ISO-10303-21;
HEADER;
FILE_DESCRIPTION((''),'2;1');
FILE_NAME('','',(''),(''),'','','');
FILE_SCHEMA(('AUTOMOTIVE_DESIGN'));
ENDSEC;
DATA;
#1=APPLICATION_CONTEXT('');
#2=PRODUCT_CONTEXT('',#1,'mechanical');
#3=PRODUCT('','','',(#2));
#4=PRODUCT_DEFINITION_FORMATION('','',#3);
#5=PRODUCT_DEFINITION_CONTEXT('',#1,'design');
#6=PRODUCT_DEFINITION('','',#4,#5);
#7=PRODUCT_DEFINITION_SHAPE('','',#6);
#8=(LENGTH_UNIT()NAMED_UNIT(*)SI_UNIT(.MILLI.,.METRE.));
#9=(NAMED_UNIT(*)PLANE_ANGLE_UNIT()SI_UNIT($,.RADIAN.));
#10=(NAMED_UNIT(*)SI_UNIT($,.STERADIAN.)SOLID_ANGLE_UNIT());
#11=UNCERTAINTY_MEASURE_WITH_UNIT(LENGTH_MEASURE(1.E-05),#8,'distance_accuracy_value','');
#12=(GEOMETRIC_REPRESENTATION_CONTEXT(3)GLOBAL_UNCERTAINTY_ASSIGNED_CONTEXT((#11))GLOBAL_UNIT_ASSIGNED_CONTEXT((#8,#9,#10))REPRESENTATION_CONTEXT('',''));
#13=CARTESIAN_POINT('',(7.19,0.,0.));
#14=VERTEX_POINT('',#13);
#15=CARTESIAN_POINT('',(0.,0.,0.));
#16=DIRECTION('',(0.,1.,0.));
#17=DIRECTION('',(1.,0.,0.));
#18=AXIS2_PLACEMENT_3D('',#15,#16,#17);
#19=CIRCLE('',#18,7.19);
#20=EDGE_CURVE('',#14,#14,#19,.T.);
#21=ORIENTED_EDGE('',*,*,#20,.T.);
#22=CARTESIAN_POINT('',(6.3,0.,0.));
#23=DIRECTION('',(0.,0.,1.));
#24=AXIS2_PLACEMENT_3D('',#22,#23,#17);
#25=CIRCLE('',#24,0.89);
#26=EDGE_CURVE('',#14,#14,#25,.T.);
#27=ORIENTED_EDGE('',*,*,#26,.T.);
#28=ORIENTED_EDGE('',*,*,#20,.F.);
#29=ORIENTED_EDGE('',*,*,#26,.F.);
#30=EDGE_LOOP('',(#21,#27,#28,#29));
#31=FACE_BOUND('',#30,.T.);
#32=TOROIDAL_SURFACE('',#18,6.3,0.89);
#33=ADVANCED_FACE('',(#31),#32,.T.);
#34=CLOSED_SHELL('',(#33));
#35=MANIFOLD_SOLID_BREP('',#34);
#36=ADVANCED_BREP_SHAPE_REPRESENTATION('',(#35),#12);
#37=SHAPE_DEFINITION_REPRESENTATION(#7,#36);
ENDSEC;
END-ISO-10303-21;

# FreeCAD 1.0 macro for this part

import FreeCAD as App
import Part
import Sketcher
Q = App.Units.Quantity

doc = App.newDocument("Part")
body = doc.addObject("PartDesign::Body", "Body")

# Sketch on XY plane
sketch1 = body.newObject("Sketcher::SketchObject", "Sketch")
sketch1.AttachmentSupport = (doc.getObject("XY_Plane"), [""])
sketch1.MapMode = "FlatFace"
sketch1.addGeometry(Part.Circle(App.Vector(6.3, 0, 0), App.Vector(0, 0, 1), 0.9), False)
sketch1.addConstraint([
    Sketcher.Constraint("PointOnObject", 0, 3, -1),
    Sketcher.Constraint("Diameter", 0, Q("1.78 mm")),
    Sketcher.Constraint("DistanceX", -1, 1, 0, 3, Q("6.3 mm")),
])
revolution = body.newObject("PartDesign::Revolution", "Revolution")
revolution.Profile = sketch1
revolution.ReferenceAxis = (sketch1, ["V_Axis"])
revolution.Angle = 360

doc.recompute()
